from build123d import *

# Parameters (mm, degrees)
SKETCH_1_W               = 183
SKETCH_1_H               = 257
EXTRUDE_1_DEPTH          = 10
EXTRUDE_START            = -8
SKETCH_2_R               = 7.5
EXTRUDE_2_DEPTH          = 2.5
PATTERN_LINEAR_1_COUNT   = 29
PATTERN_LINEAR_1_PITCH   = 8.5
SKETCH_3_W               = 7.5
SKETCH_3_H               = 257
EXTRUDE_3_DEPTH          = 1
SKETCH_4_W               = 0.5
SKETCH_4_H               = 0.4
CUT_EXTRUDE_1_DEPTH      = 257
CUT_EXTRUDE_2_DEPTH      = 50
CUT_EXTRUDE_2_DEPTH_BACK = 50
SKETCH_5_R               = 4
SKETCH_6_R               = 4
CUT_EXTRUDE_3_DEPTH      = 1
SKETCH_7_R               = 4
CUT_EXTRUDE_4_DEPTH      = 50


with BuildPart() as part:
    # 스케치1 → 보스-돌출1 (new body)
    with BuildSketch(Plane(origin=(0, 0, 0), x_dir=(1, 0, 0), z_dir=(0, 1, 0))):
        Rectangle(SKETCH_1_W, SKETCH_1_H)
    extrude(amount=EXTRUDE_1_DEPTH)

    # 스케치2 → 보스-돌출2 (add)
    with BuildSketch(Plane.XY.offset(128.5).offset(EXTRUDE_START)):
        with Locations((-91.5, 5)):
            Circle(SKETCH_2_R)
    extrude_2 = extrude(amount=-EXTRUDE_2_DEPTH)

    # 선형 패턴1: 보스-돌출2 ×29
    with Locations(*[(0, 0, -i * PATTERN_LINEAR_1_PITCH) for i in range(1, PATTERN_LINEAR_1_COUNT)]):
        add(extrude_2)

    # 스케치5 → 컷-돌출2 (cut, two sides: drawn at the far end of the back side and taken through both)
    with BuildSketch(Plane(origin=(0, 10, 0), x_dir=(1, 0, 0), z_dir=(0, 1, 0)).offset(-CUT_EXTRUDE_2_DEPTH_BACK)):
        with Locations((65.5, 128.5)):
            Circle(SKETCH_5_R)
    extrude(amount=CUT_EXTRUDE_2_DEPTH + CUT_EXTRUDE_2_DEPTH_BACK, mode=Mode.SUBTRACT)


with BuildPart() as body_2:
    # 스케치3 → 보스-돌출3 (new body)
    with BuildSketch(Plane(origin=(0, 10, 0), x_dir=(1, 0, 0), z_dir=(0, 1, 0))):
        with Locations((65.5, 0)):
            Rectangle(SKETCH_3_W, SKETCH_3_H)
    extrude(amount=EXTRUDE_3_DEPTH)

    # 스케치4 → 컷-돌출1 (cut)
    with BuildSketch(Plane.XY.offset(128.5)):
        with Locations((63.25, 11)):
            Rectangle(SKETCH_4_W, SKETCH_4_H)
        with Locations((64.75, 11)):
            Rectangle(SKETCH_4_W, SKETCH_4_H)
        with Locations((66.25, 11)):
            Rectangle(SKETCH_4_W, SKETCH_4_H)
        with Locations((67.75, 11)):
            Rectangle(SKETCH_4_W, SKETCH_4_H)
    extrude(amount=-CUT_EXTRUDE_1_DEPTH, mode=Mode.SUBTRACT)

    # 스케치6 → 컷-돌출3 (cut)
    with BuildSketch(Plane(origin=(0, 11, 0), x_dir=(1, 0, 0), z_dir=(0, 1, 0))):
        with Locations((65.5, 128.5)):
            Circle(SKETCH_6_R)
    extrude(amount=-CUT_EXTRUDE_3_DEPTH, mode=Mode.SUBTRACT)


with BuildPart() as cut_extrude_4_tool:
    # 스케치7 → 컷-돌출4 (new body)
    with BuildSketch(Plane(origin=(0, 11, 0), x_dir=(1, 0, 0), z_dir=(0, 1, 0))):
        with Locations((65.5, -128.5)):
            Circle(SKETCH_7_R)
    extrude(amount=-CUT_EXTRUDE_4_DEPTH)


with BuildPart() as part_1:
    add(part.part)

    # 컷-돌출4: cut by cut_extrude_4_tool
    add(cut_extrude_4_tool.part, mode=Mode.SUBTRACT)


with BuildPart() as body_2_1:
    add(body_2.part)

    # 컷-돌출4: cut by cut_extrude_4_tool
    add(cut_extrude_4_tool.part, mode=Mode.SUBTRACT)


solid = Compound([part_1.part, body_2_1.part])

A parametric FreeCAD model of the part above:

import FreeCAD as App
import Part
import Sketcher


def add_polygon(sketch, points):
    """Adds a closed chain of lines whose ends are joined by coincident constraints."""
    first, n = sketch.GeometryCount, len(points)
    for a, b in zip(points, points[1:] + points[:1]):
        sketch.addGeometry(Part.LineSegment(App.Vector(*a, 0), App.Vector(*b, 0)), False)
    for i in range(n):
        sketch.addConstraint(Sketcher.Constraint("Coincident", first + i, 2, first + (i + 1) % n, 1))

doc = App.newDocument("Part")
body = doc.addObject("PartDesign::Body", "Body")

# Sketch on XZ plane
sketch1 = doc.addObject("Sketcher::SketchObject", "Sketch")
body.addObject(sketch1)
sketch1.AttachmentSupport = (doc.XZ_Plane, [""])
sketch1.MapMode = "FlatFace"
add_polygon(sketch1, [(-92, -128), (-92, 128), (92, 128), (92, -128)])  # lines 0-3
sketch1.addConstraint([
    Sketcher.Constraint("Vertical", 0),
    Sketcher.Constraint("Horizontal", 1),
    Sketcher.Constraint("Vertical", 2),
    Sketcher.Constraint("Horizontal", 3),
    Sketcher.Constraint("Symmetric", 0, 2, 2, 2, -1, 1),
    Sketcher.Constraint("DistanceX", 1, 1, 1, 2, 183.0),
    Sketcher.Constraint("DistanceY", 0, 1, 0, 2, 257.0),
])
pad1 = doc.addObject("PartDesign::Pad", "Pad")
body.addObject(pad1)
pad1.Profile = sketch1
pad1.Length = 10
pad1.Reversed = True

# Sketch on XY plane
sketch2 = doc.addObject("Sketcher::SketchObject", "Sketch001")
body.addObject(sketch2)
sketch2.AttachmentSupport = (doc.XY_Plane, [""])
sketch2.MapMode = "FlatFace"
sketch2.AttachmentOffset = App.Placement(App.Vector(0, 0, 120.5), App.Rotation())
sketch2.addGeometry(Part.Circle(App.Vector(-92, 5, 0), App.Vector(0, 0, 1), 8), False)
sketch2.addConstraint([
    Sketcher.Constraint("Diameter", 0, 15.0),
    Sketcher.Constraint("DistanceY", -1, 1, 0, 3, 5.0),
    Sketcher.Constraint("DistanceX", 0, 3, -1, 1, 91.5),
])
pad2 = doc.addObject("PartDesign::Pad", "Pad001")
body.addObject(pad2)
pad2.Profile = sketch2
pad2.Length = 2.5
pad2.Reversed = True
doc.recompute()

linearpattern = doc.addObject("PartDesign::LinearPattern", "LinearPattern")
body.addObject(linearpattern)
linearpattern.Originals = [pad2]
linearpattern.Direction = (doc.Z_Axis, [""])
linearpattern.Mode = "offset"
linearpattern.Offset = 8.5
linearpattern.Occurrences = 29
linearpattern.Reversed = True
body.Tip = linearpattern

# Sketch on XZ plane
sketch3 = doc.addObject("Sketcher::SketchObject", "Sketch002")
body.addObject(sketch3)
sketch3.AttachmentSupport = (doc.XZ_Plane, [""])
sketch3.MapMode = "FlatFace"
sketch3.AttachmentOffset = App.Placement(App.Vector(0, 0, -10), App.Rotation())
sketch3.addGeometry(Part.Circle(App.Vector(65.5, -128.5, 0), App.Vector(0, 0, 1), 4), False)
sketch3.addConstraint([
    Sketcher.Constraint("Diameter", 0, 8.0),
    Sketcher.Constraint("DistanceX", -1, 1, 0, 3, 65.5),
    Sketcher.Constraint("DistanceY", 0, 3, -1, 1, 128.5),
])
pocket1 = doc.addObject("PartDesign::Pocket", "Pocket")
body.addObject(pocket1)
pocket1.Profile = sketch3
pocket1.Type = "ThroughAll"
pocket1.Midplane = True
body2 = doc.addObject("PartDesign::Body", "Body001")

# Sketch on XZ plane
sketch4 = doc.addObject("Sketcher::SketchObject", "Sketch003")
body2.addObject(sketch4)
sketch4.AttachmentSupport = (doc.getObject("XZ_Plane001"), [""])
sketch4.MapMode = "FlatFace"
sketch4.AttachmentOffset = App.Placement(App.Vector(0, 0, -10), App.Rotation())
add_polygon(sketch4, [(62, -128), (62, 128), (69, 128), (69, -128)])  # lines 0-3
sketch4.addConstraint([
    Sketcher.Constraint("Vertical", 0),
    Sketcher.Constraint("Horizontal", 1),
    Sketcher.Constraint("Vertical", 2),
    Sketcher.Constraint("Horizontal", 3),
    Sketcher.Constraint("DistanceY", 0, 1, 0, 2, 257.0),
    Sketcher.Constraint("DistanceX", 1, 1, 1, 2, 7.5),
    Sketcher.Constraint("DistanceY", -1, 1, 0, 2, 128.5),
    Sketcher.Constraint("DistanceX", -1, 1, 0, 2, 61.75),
])
pad3 = doc.addObject("PartDesign::Pad", "Pad002")
body2.addObject(pad3)
pad3.Profile = sketch4
pad3.Length = 1
pad3.Reversed = True

# Sketch on XY plane
sketch5 = doc.addObject("Sketcher::SketchObject", "Sketch004")
body2.addObject(sketch5)
sketch5.AttachmentSupport = (doc.getObject("XY_Plane001"), [""])
sketch5.MapMode = "FlatFace"
sketch5.AttachmentOffset = App.Placement(App.Vector(0, 0, 128.5), App.Rotation())
add_polygon(sketch5, [(63, 11.2), (63, 10.8), (63.5, 10.8), (63.5, 11.2)])  # lines 0-3
add_polygon(sketch5, [(64.5, 11.2), (64.5, 10.8), (65, 10.8), (65, 11.2)])  # lines 4-7
add_polygon(sketch5, [(66, 11.2), (66, 10.8), (66.5, 10.8), (66.5, 11.2)])  # lines 8-11
add_polygon(sketch5, [(67.5, 11.2), (67.5, 10.8), (68, 10.8), (68, 11.2)])  # lines 12-15
sketch5.addConstraint([
    Sketcher.Constraint("Vertical", 0),
    Sketcher.Constraint("Horizontal", 1),
    Sketcher.Constraint("Vertical", 2),
    Sketcher.Constraint("Horizontal", 3),
    Sketcher.Constraint("Vertical", 4),
    Sketcher.Constraint("Horizontal", 5),
    Sketcher.Constraint("Vertical", 6),
    Sketcher.Constraint("Horizontal", 7),
    Sketcher.Constraint("Vertical", 8),
    Sketcher.Constraint("Horizontal", 9),
    Sketcher.Constraint("Vertical", 10),
    Sketcher.Constraint("Horizontal", 11),
    Sketcher.Constraint("Vertical", 12),
    Sketcher.Constraint("Horizontal", 13),
    Sketcher.Constraint("Vertical", 14),
    Sketcher.Constraint("Horizontal", 15),
    Sketcher.Constraint("Horizontal", 1, 2, 4, 2),
    Sketcher.Constraint("Horizontal", 3, 2, 6, 2),
    Sketcher.Constraint("Horizontal", 5, 2, 8, 2),
    Sketcher.Constraint("Horizontal", 7, 2, 10, 2),
    Sketcher.Constraint("Horizontal", 9, 2, 12, 2),
    Sketcher.Constraint("Horizontal", 11, 2, 14, 2),
    Sketcher.Constraint("Equal", 3, 5),
    Sketcher.Constraint("Equal", 7, 9),
    Sketcher.Constraint("Equal", 11, 13),
    Sketcher.Constraint("DistanceX", 1, 1, 1, 2, 0.5),
    Sketcher.Constraint("DistanceY", 0, 2, 0, 1, 0.4),
    Sketcher.Constraint("DistanceX", -1, 1, 0, 2, 63.0),
    Sketcher.Constraint("DistanceX", -1, 1, 5, 2, 65.0),
    Sketcher.Constraint("DistanceX", -1, 1, 8, 2, 66.0),
    Sketcher.Constraint("DistanceX", -1, 1, 13, 2, 68.0),
    Sketcher.Constraint("DistanceY", -1, 1, 0, 2, 10.8),
])
pocket2 = doc.addObject("PartDesign::Pocket", "Pocket001")
body2.addObject(pocket2)
pocket2.Profile = sketch5
pocket2.Length = 257

# Sketch on XZ plane
sketch6 = doc.addObject("Sketcher::SketchObject", "Sketch005")
body2.addObject(sketch6)
sketch6.AttachmentSupport = (doc.getObject("XZ_Plane001"), [""])
sketch6.MapMode = "FlatFace"
sketch6.AttachmentOffset = App.Placement(App.Vector(0, 0, -11), App.Rotation())
sketch6.addGeometry(Part.Circle(App.Vector(65.5, -128.5, 0), App.Vector(0, 0, 1), 4), False)
sketch6.addConstraint([
    Sketcher.Constraint("Diameter", 0, 8.0),
    Sketcher.Constraint("DistanceX", -1, 1, 0, 3, 65.5),
    Sketcher.Constraint("DistanceY", 0, 3, -1, 1, 128.5),
])
pocket3 = doc.addObject("PartDesign::Pocket", "Pocket002")
body2.addObject(pocket3)
pocket3.Profile = sketch6
pocket3.Length = 1
pocket3.Reversed = True
body3 = doc.addObject("PartDesign::Body", "Body002")

# Sketch on XZ plane
sketch7 = doc.addObject("Sketcher::SketchObject", "Sketch006")
body3.addObject(sketch7)
sketch7.AttachmentSupport = (doc.getObject("XZ_Plane002"), [""])
sketch7.MapMode = "FlatFace"
sketch7.AttachmentOffset = App.Placement(App.Vector(0, 0, -11), App.Rotation())
sketch7.addGeometry(Part.Circle(App.Vector(65.5, 128.5, 0), App.Vector(0, 0, 1), 4), False)
sketch7.addConstraint([
    Sketcher.Constraint("Diameter", 0, 8.0),
    Sketcher.Constraint("DistanceX", -1, 1, 0, 3, 65.5),
    Sketcher.Constraint("DistanceY", -1, 1, 0, 3, 128.5),
])
pad4 = doc.addObject("PartDesign::Pad", "Pad003")
body3.addObject(pad4)
pad4.Profile = sketch7
pad4.Length = 50
doc.recompute()

body4 = doc.addObject("PartDesign::Body", "Body003")
body4.BaseFeature = body3
boolean = doc.addObject("PartDesign::Boolean", "Boolean")
body.addObject(boolean)
boolean.Type = "Cut"
boolean.addObjects([body4])
doc.recompute()

boolean2 = doc.addObject("PartDesign::Boolean", "Boolean001")
body2.addObject(boolean2)
boolean2.Type = "Cut"
boolean2.addObjects([body3])

doc.recompute()
